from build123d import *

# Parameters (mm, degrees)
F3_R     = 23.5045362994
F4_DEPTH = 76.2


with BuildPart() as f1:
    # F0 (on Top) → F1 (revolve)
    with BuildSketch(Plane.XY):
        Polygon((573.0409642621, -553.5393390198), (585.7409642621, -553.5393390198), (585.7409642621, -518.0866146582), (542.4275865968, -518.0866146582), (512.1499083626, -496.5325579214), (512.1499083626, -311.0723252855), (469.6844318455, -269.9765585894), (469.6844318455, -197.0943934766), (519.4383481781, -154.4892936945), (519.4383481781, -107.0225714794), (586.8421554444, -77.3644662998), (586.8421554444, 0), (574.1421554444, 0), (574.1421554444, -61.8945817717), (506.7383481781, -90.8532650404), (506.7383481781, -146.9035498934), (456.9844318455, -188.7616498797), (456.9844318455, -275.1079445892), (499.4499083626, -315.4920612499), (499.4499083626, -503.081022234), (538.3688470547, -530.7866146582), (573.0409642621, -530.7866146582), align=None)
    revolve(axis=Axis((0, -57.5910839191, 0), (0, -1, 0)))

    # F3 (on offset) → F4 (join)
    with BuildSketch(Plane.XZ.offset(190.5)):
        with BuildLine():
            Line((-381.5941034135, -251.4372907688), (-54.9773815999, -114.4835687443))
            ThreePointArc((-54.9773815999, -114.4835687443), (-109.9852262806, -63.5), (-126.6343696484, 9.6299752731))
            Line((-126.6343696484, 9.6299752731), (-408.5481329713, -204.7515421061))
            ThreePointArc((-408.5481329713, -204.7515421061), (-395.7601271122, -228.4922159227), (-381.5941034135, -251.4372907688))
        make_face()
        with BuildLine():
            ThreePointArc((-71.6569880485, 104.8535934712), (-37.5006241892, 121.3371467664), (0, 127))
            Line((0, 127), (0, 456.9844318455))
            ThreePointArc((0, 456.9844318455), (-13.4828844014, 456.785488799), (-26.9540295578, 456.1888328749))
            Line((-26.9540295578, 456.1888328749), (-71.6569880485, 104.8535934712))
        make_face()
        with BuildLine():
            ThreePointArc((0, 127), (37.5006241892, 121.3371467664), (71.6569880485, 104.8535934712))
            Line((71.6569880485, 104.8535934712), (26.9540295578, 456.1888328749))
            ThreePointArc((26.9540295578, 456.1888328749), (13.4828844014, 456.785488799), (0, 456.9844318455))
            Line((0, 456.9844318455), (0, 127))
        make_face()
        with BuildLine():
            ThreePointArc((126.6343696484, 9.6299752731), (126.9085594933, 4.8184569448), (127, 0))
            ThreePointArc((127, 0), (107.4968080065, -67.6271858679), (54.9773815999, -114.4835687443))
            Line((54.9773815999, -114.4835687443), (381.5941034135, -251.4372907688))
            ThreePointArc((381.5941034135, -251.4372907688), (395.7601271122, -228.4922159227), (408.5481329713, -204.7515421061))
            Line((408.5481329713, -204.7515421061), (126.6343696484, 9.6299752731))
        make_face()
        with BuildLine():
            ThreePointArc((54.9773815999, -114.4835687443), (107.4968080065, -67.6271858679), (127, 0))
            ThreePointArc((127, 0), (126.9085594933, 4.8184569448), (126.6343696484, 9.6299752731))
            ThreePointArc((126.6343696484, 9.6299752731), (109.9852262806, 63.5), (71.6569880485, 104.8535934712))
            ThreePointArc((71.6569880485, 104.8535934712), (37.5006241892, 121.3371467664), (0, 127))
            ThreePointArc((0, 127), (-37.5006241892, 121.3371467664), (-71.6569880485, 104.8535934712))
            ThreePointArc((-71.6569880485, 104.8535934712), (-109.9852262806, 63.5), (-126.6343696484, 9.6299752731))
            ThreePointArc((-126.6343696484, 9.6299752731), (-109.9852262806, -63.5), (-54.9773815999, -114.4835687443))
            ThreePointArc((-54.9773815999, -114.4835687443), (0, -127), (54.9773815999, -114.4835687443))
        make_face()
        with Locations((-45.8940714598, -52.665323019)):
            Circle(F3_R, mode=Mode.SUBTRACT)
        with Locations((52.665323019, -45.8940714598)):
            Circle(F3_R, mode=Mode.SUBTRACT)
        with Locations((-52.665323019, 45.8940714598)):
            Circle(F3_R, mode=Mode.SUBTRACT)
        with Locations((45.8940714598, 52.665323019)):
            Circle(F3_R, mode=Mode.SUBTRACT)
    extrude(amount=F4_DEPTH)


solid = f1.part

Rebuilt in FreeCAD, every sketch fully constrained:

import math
import FreeCAD as App
import Part
import Sketcher

V = App.Vector
Q = App.Units.Quantity

doc = App.newDocument("Part")
body = doc.addObject("PartDesign::Body", "Body")

# Sketch on XY plane
sketch1 = doc.addObject("Sketcher::SketchObject", "Sketch")
body.addObject(sketch1)
sketch1.AttachmentSupport = (doc.XY_Plane, [""])
sketch1.MapMode = "FlatFace"
sketch1.addGeometry(Part.LineSegment(V(573, -554, 0), V(586, -554, 0)), False)
sketch1.addGeometry(Part.LineSegment(V(586, -554, 0), V(586, -518, 0)), False)
sketch1.addGeometry(Part.LineSegment(V(586, -518, 0), V(542, -518, 0)), False)
sketch1.addGeometry(Part.LineSegment(V(542, -518, 0), V(512, -497, 0)), False)
sketch1.addGeometry(Part.LineSegment(V(512, -497, 0), V(512, -311, 0)), False)
sketch1.addGeometry(Part.LineSegment(V(512, -311, 0), V(470, -270, 0)), False)
sketch1.addGeometry(Part.LineSegment(V(470, -270, 0), V(470, -197, 0)), False)
sketch1.addGeometry(Part.LineSegment(V(470, -197, 0), V(519, -154, 0)), False)
sketch1.addGeometry(Part.LineSegment(V(519, -154, 0), V(519, -107, 0)), False)
sketch1.addGeometry(Part.LineSegment(V(519, -107, 0), V(587, -77, 0)), False)
sketch1.addGeometry(Part.LineSegment(V(587, -77, 0), V(587, 0, 0)), False)
sketch1.addGeometry(Part.LineSegment(V(587, 0, 0), V(574, 0, 0)), False)
sketch1.addGeometry(Part.LineSegment(V(574, 0, 0), V(574, -62, 0)), False)
sketch1.addGeometry(Part.LineSegment(V(574, -62, 0), V(507, -91, 0)), False)
sketch1.addGeometry(Part.LineSegment(V(507, -91, 0), V(507, -147, 0)), False)
sketch1.addGeometry(Part.LineSegment(V(507, -147, 0), V(457, -189, 0)), False)
sketch1.addGeometry(Part.LineSegment(V(457, -189, 0), V(457, -275, 0)), False)
sketch1.addGeometry(Part.LineSegment(V(457, -275, 0), V(499, -315, 0)), False)
sketch1.addGeometry(Part.LineSegment(V(499, -315, 0), V(499, -503, 0)), False)
sketch1.addGeometry(Part.LineSegment(V(499, -503, 0), V(538, -531, 0)), False)
sketch1.addGeometry(Part.LineSegment(V(538, -531, 0), V(573, -531, 0)), False)
sketch1.addGeometry(Part.LineSegment(V(573, -531, 0), V(573, -554, 0)), False)
sketch1.addConstraint(Sketcher.Constraint("Coincident", 0, 2, 1, 1))
sketch1.addConstraint(Sketcher.Constraint("Coincident", 1, 2, 2, 1))
sketch1.addConstraint(Sketcher.Constraint("Coincident", 2, 2, 3, 1))
sketch1.addConstraint(Sketcher.Constraint("Coincident", 3, 2, 4, 1))
sketch1.addConstraint(Sketcher.Constraint("Coincident", 4, 2, 5, 1))
sketch1.addConstraint(Sketcher.Constraint("Coincident", 5, 2, 6, 1))
sketch1.addConstraint(Sketcher.Constraint("Coincident", 6, 2, 7, 1))
sketch1.addConstraint(Sketcher.Constraint("Coincident", 7, 2, 8, 1))
sketch1.addConstraint(Sketcher.Constraint("Coincident", 8, 2, 9, 1))
sketch1.addConstraint(Sketcher.Constraint("Coincident", 9, 2, 10, 1))
sketch1.addConstraint(Sketcher.Constraint("Coincident", 10, 2, 11, 1))
sketch1.addConstraint(Sketcher.Constraint("Coincident", 11, 2, 12, 1))
sketch1.addConstraint(Sketcher.Constraint("Coincident", 12, 2, 13, 1))
sketch1.addConstraint(Sketcher.Constraint("Coincident", 13, 2, 14, 1))
sketch1.addConstraint(Sketcher.Constraint("Coincident", 14, 2, 15, 1))
sketch1.addConstraint(Sketcher.Constraint("Coincident", 15, 2, 16, 1))
sketch1.addConstraint(Sketcher.Constraint("Coincident", 16, 2, 17, 1))
sketch1.addConstraint(Sketcher.Constraint("Coincident", 17, 2, 18, 1))
sketch1.addConstraint(Sketcher.Constraint("Coincident", 18, 2, 19, 1))
sketch1.addConstraint(Sketcher.Constraint("Coincident", 19, 2, 20, 1))
sketch1.addConstraint(Sketcher.Constraint("Coincident", 20, 2, 21, 1))
sketch1.addConstraint(Sketcher.Constraint("Coincident", 21, 2, 0, 1))
sketch1.addConstraint(Sketcher.Constraint("Horizontal", 0))
sketch1.addConstraint(Sketcher.Constraint("Vertical", 1))
sketch1.addConstraint(Sketcher.Constraint("Horizontal", 2))
sketch1.addConstraint(Sketcher.Constraint("Vertical", 4))
sketch1.addConstraint(Sketcher.Constraint("Vertical", 6))
sketch1.addConstraint(Sketcher.Constraint("Vertical", 8))
sketch1.addConstraint(Sketcher.Constraint("Vertical", 10))
sketch1.addConstraint(Sketcher.Constraint("Horizontal", 11))
sketch1.addConstraint(Sketcher.Constraint("Vertical", 12))
sketch1.addConstraint(Sketcher.Constraint("Vertical", 14))
sketch1.addConstraint(Sketcher.Constraint("Vertical", 16))
sketch1.addConstraint(Sketcher.Constraint("Vertical", 18))
sketch1.addConstraint(Sketcher.Constraint("Horizontal", 20))
sketch1.addConstraint(Sketcher.Constraint("Vertical", 21))
sketch1.addConstraint(Sketcher.Constraint("PointOnObject", 10, 2, -1))
sketch1.addConstraint(Sketcher.Constraint("Parallel", 3, 19))
sketch1.addConstraint(Sketcher.Constraint("Equal", 0, 11))
sketch1.addConstraint(Sketcher.Constraint("DistanceX", 0, 1, 0, 2, Q("0.5 in")))
sketch1.addConstraint(Sketcher.Constraint("DistanceX", 13, 2, 8, 2, Q("0.5 in")))
sketch1.addConstraint(Sketcher.Constraint("DistanceX", 15, 2, 6, 2, Q("0.5 in")))
sketch1.addConstraint(Sketcher.Constraint("DistanceX", 17, 2, 4, 2, Q("0.5 in")))
sketch1.addConstraint(Sketcher.Constraint("DistanceY", 19, 2, 2, 2, Q("0.5 in")))
sketch1.addConstraint(Sketcher.Constraint("DistanceY", 13, 2, -1, 1, Q("3.5769002 in")))
sketch1.addConstraint(Sketcher.Constraint("DistanceY", 12, 2, 12, 1, Q("61.894582 mm")))
sketch1.addConstraint(Sketcher.Constraint("DistanceY", 18, 2, 18, 1, Q("187.588961 mm")))
sketch1.addConstraint(Sketcher.Constraint("DistanceY", 3, 2, 5, 2, Q("226.555999 mm")))
sketch1.addConstraint(Sketcher.Constraint("DistanceY", 6, 2, 7, 2, Q("42.6051 mm")))
sketch1.addConstraint(Sketcher.Constraint("DistanceY", 13, 2, 9, 2, Q("13.488799 mm")))
sketch1.addConstraint(Sketcher.Constraint("DistanceY", 15, 2, 14, 2, Q("41.8581 mm")))
sketch1.addConstraint(Sketcher.Constraint("Distance", 3, Q("37.166048 mm")))
sketch1.addConstraint(Sketcher.Constraint("Distance", 5, Q("59.094659 mm")))
sketch1.addConstraint(Sketcher.Constraint("Distance", 7, Q("65.503028 mm")))
sketch1.addConstraint(Sketcher.Constraint("DistanceX", 2, 2, 2, 1, Q("43.313378 mm")))
sketch1.addConstraint(Sketcher.Constraint("DistanceX", 20, 1, 20, 2, Q("34.672117 mm")))
sketch1.addConstraint(Sketcher.Constraint("DistanceY", 1, 1, 1, 2, Q("35.452724 mm")))
sketch1.addConstraint(Sketcher.Constraint("DistanceY", 4, 1, 4, 2, Q("185.460233 mm")))
sketch1.addConstraint(Sketcher.Constraint("DistanceY", 6, 1, 6, 2, Q("72.882165 mm")))
sketch1.addConstraint(Sketcher.Constraint("DistanceY", 8, 1, 8, 2, Q("47.466722 mm")))
sketch1.addConstraint(Sketcher.Constraint("DistanceY", 14, 2, 14, 1, Q("56.050285 mm")))
sketch1.addConstraint(Sketcher.Constraint("DistanceY", 16, 2, 16, 1, Q("86.346295 mm")))
sketch1.addConstraint(Sketcher.Constraint("DistanceY", 0, 2, -1, 1, Q("553.539339 mm")))
sketch1.addConstraint(Sketcher.Constraint("DistanceX", -1, 1, 3, 2, Q("512.149908 mm")))
sketch1.addConstraint(Sketcher.Constraint("DistanceY", 5, 2, -1, 1, Q("269.976559 mm")))
sketch1.addConstraint(Sketcher.Constraint("Distance", 9, Q("73.640182 mm")))
revolution = doc.addObject("PartDesign::Revolution", "Revolution")
body.addObject(revolution)
revolution.Profile = sketch1
revolution.ReferenceAxis = (sketch1, ["V_Axis"])
revolution.Angle = 360

# Sketch on XZ plane
sketch2 = doc.addObject("Sketcher::SketchObject", "Sketch001")
body.addObject(sketch2)
sketch2.AttachmentSupport = (doc.XZ_Plane, [""])
sketch2.MapMode = "FlatFace"
sketch2.AttachmentOffset = App.Placement(V(0, 0, 7.5 * 25.4), App.Rotation())
sketch2.addGeometry(Part.LineSegment(V(-381.594103, -251.437291, 0), V(-54.977382, -114.483569, 0)), False)
sketch2.addGeometry(Part.ArcOfCircle(Part.Circle(V(0, 0, 0), V(0, 0, 1), 127), math.radians(-115.651283), math.radians(-64.348717)), False)
sketch2.addGeometry(Part.LineSegment(V(54.977382, -114.483569, 0), V(381.594103, -251.437291, 0)), False)
sketch2.addGeometry(Part.ArcOfCircle(Part.Circle(V(0, 0, 0), V(0, 0, 1), 456.984432), math.radians(-33.381404), math.radians(-26.618596)), False)
sketch2.addGeometry(Part.LineSegment(V(408.548133, -204.751542, 0), V(126.63437, 9.629975, 0)), False)
sketch2.addGeometry(Part.ArcOfCircle(Part.Circle(V(0, 0, 0), V(0, 0, 1), 127), math.radians(4.348717), math.radians(55.651283)), False)
sketch2.addGeometry(Part.LineSegment(V(71.656988, 104.853593, 0), V(26.95403, 456.188833, 0)), False)
sketch2.addGeometry(Part.ArcOfCircle(Part.Circle(V(0, 0, 0), V(0, 0, 1), 456.984432), math.radians(86.618596), math.radians(90)), False)
sketch2.addGeometry(Part.ArcOfCircle(Part.Circle(V(0, 0, 0), V(0, 0, 1), 456.984432), math.radians(90), math.radians(93.381404)), False)
sketch2.addGeometry(Part.LineSegment(V(-26.95403, 456.188833, 0), V(-71.656988, 104.853593, 0)), False)
sketch2.addGeometry(Part.ArcOfCircle(Part.Circle(V(0, 0, 0), V(0, 0, 1), 127), math.radians(124.348717), math.radians(175.651283)), False)
sketch2.addGeometry(Part.LineSegment(V(-126.63437, 9.629975, 0), V(-408.548133, -204.751542, 0)), False)
sketch2.addGeometry(Part.ArcOfCircle(Part.Circle(V(0, 0, 0), V(0, 0, 1), 456.984432), math.radians(-153.381404), math.radians(-146.618596)), False)
sketch2.addGeometry(Part.Circle(V(-45.894071, -52.665323, 0), V(0, 0, 1), 23.504536), False)
sketch2.addGeometry(Part.Circle(V(52.665323, -45.894071, 0), V(0, 0, 1), 23.504536), False)
sketch2.addGeometry(Part.Circle(V(-52.665323, 45.894071, 0), V(0, 0, 1), 23.504536), False)
sketch2.addGeometry(Part.Circle(V(45.894071, 52.665323, 0), V(0, 0, 1), 23.504536), False)
sketch2.addConstraint(Sketcher.Constraint("Coincident", 0, 2, 1, 1))
sketch2.addConstraint(Sketcher.Constraint("Coincident", 1, 2, 2, 1))
sketch2.addConstraint(Sketcher.Constraint("Coincident", 2, 2, 3, 1))
sketch2.addConstraint(Sketcher.Constraint("Coincident", 3, 2, 4, 1))
sketch2.addConstraint(Sketcher.Constraint("Coincident", 4, 2, 5, 1))
sketch2.addConstraint(Sketcher.Constraint("Coincident", 5, 2, 6, 1))
sketch2.addConstraint(Sketcher.Constraint("Coincident", 6, 2, 7, 1))
sketch2.addConstraint(Sketcher.Constraint("Coincident", 7, 2, 8, 1))
sketch2.addConstraint(Sketcher.Constraint("Coincident", 8, 2, 9, 1))
sketch2.addConstraint(Sketcher.Constraint("Coincident", 9, 2, 10, 1))
sketch2.addConstraint(Sketcher.Constraint("Coincident", 10, 2, 11, 1))
sketch2.addConstraint(Sketcher.Constraint("Coincident", 11, 2, 12, 1))
sketch2.addConstraint(Sketcher.Constraint("Coincident", 12, 2, 0, 1))
sketch2.addConstraint(Sketcher.Constraint("Coincident", 1, 3, -1, 1))
sketch2.addConstraint(Sketcher.Constraint("Coincident", 3, 3, -1, 1))
sketch2.addConstraint(Sketcher.Constraint("Coincident", 5, 3, -1, 1))
sketch2.addConstraint(Sketcher.Constraint("Coincident", 7, 3, -1, 1))
sketch2.addConstraint(Sketcher.Constraint("Coincident", 8, 3, -1, 1))
sketch2.addConstraint(Sketcher.Constraint("Coincident", 10, 3, -1, 1))
sketch2.addConstraint(Sketcher.Constraint("Coincident", 12, 3, -1, 1))
sketch2.addConstraint(Sketcher.Constraint("PointOnObject", 7, 2, -2))
sketch2.addConstraint(Sketcher.Constraint("Radius", 1, Q("5 in")))
sketch2.addConstraint(Sketcher.Constraint("Radius", 5, Q("5 in")))
sketch2.addConstraint(Sketcher.Constraint("Radius", 10, Q("5 in")))
sketch2.addConstraint(Sketcher.Constraint("Radius", 3, Q("456.984432 mm")))
sketch2.addConstraint(Sketcher.Constraint("Radius", 7, Q("456.984432 mm")))
sketch2.addConstraint(Sketcher.Constraint("Radius", 12, Q("456.984432 mm")))
sketch2.addConstraint(Sketcher.Constraint("Diameter", 13, Q("47.009073 mm")))
sketch2.addConstraint(Sketcher.Constraint("Diameter", 14, Q("47.009073 mm")))
sketch2.addConstraint(Sketcher.Constraint("Diameter", 15, Q("47.009073 mm")))
sketch2.addConstraint(Sketcher.Constraint("Diameter", 16, Q("47.009073 mm")))
sketch2.addConstraint(Sketcher.Constraint("DistanceX", 16, 3, 4, 2, Q("80.740298 mm")))
sketch2.addConstraint(Sketcher.Constraint("DistanceY", 6, 2, 7, 2, Q("0.795599 mm")))
sketch2.addConstraint(Sketcher.Constraint("DistanceY", 8, 2, 7, 2, Q("0.795599 mm")))
sketch2.addConstraint(Sketcher.Constraint("DistanceX", 10, 2, 13, 3, Q("80.740298 mm")))
sketch2.addConstraint(Sketcher.Constraint("DistanceY", 13, 3, 10, 2, Q("62.295298 mm")))
sketch2.addConstraint(Sketcher.Constraint("DistanceX", 13, 3, -1, 1, Q("45.894071 mm")))
sketch2.addConstraint(Sketcher.Constraint("DistanceY", 14, 3, -1, 1, Q("45.894071 mm")))
sketch2.addConstraint(Sketcher.Constraint("DistanceY", -1, 1, 15, 3, Q("45.894071 mm")))
sketch2.addConstraint(Sketcher.Constraint("DistanceX", -1, 1, 16, 3, Q("45.894071 mm")))
sketch2.addConstraint(Sketcher.Constraint("DistanceX", 0, 2, -1, 1, Q("54.977382 mm")))
sketch2.addConstraint(Sketcher.Constraint("DistanceX", -1, 1, 1, 2, Q("54.977382 mm")))
sketch2.addConstraint(Sketcher.Constraint("DistanceY", 2, 2, -1, 1, Q("251.437291 mm")))
sketch2.addConstraint(Sketcher.Constraint("DistanceX", -1, 1, 5, 2, Q("71.656988 mm")))
sketch2.addConstraint(Sketcher.Constraint("DistanceX", 9, 2, -1, 1, Q("71.656988 mm")))
sketch2.addConstraint(Sketcher.Constraint("DistanceY", 12, 2, -1, 1, Q("251.437291 mm")))
sketch2.addConstraint(Sketcher.Constraint("DistanceX", 14, 3, 1, 2, Q("2.312059 mm")))
sketch2.addConstraint(Sketcher.Constraint("DistanceX", 2, 2, 3, 2, Q("26.95403 mm")))
sketch2.addConstraint(Sketcher.Constraint("DistanceY", 16, 3, 5, 2, Q("52.18827 mm")))
sketch2.addConstraint(Sketcher.Constraint("DistanceX", 11, 2, 0, 2, Q("353.570751 mm")))
sketch2.addConstraint(Sketcher.Constraint("DistanceX", 11, 2, 15, 3, Q("355.88281 mm")))
pad1 = doc.addObject("PartDesign::Pad", "Pad")
body.addObject(pad1)
pad1.Profile = sketch2
pad1.Length = Q("3 in")

doc.recompute()
